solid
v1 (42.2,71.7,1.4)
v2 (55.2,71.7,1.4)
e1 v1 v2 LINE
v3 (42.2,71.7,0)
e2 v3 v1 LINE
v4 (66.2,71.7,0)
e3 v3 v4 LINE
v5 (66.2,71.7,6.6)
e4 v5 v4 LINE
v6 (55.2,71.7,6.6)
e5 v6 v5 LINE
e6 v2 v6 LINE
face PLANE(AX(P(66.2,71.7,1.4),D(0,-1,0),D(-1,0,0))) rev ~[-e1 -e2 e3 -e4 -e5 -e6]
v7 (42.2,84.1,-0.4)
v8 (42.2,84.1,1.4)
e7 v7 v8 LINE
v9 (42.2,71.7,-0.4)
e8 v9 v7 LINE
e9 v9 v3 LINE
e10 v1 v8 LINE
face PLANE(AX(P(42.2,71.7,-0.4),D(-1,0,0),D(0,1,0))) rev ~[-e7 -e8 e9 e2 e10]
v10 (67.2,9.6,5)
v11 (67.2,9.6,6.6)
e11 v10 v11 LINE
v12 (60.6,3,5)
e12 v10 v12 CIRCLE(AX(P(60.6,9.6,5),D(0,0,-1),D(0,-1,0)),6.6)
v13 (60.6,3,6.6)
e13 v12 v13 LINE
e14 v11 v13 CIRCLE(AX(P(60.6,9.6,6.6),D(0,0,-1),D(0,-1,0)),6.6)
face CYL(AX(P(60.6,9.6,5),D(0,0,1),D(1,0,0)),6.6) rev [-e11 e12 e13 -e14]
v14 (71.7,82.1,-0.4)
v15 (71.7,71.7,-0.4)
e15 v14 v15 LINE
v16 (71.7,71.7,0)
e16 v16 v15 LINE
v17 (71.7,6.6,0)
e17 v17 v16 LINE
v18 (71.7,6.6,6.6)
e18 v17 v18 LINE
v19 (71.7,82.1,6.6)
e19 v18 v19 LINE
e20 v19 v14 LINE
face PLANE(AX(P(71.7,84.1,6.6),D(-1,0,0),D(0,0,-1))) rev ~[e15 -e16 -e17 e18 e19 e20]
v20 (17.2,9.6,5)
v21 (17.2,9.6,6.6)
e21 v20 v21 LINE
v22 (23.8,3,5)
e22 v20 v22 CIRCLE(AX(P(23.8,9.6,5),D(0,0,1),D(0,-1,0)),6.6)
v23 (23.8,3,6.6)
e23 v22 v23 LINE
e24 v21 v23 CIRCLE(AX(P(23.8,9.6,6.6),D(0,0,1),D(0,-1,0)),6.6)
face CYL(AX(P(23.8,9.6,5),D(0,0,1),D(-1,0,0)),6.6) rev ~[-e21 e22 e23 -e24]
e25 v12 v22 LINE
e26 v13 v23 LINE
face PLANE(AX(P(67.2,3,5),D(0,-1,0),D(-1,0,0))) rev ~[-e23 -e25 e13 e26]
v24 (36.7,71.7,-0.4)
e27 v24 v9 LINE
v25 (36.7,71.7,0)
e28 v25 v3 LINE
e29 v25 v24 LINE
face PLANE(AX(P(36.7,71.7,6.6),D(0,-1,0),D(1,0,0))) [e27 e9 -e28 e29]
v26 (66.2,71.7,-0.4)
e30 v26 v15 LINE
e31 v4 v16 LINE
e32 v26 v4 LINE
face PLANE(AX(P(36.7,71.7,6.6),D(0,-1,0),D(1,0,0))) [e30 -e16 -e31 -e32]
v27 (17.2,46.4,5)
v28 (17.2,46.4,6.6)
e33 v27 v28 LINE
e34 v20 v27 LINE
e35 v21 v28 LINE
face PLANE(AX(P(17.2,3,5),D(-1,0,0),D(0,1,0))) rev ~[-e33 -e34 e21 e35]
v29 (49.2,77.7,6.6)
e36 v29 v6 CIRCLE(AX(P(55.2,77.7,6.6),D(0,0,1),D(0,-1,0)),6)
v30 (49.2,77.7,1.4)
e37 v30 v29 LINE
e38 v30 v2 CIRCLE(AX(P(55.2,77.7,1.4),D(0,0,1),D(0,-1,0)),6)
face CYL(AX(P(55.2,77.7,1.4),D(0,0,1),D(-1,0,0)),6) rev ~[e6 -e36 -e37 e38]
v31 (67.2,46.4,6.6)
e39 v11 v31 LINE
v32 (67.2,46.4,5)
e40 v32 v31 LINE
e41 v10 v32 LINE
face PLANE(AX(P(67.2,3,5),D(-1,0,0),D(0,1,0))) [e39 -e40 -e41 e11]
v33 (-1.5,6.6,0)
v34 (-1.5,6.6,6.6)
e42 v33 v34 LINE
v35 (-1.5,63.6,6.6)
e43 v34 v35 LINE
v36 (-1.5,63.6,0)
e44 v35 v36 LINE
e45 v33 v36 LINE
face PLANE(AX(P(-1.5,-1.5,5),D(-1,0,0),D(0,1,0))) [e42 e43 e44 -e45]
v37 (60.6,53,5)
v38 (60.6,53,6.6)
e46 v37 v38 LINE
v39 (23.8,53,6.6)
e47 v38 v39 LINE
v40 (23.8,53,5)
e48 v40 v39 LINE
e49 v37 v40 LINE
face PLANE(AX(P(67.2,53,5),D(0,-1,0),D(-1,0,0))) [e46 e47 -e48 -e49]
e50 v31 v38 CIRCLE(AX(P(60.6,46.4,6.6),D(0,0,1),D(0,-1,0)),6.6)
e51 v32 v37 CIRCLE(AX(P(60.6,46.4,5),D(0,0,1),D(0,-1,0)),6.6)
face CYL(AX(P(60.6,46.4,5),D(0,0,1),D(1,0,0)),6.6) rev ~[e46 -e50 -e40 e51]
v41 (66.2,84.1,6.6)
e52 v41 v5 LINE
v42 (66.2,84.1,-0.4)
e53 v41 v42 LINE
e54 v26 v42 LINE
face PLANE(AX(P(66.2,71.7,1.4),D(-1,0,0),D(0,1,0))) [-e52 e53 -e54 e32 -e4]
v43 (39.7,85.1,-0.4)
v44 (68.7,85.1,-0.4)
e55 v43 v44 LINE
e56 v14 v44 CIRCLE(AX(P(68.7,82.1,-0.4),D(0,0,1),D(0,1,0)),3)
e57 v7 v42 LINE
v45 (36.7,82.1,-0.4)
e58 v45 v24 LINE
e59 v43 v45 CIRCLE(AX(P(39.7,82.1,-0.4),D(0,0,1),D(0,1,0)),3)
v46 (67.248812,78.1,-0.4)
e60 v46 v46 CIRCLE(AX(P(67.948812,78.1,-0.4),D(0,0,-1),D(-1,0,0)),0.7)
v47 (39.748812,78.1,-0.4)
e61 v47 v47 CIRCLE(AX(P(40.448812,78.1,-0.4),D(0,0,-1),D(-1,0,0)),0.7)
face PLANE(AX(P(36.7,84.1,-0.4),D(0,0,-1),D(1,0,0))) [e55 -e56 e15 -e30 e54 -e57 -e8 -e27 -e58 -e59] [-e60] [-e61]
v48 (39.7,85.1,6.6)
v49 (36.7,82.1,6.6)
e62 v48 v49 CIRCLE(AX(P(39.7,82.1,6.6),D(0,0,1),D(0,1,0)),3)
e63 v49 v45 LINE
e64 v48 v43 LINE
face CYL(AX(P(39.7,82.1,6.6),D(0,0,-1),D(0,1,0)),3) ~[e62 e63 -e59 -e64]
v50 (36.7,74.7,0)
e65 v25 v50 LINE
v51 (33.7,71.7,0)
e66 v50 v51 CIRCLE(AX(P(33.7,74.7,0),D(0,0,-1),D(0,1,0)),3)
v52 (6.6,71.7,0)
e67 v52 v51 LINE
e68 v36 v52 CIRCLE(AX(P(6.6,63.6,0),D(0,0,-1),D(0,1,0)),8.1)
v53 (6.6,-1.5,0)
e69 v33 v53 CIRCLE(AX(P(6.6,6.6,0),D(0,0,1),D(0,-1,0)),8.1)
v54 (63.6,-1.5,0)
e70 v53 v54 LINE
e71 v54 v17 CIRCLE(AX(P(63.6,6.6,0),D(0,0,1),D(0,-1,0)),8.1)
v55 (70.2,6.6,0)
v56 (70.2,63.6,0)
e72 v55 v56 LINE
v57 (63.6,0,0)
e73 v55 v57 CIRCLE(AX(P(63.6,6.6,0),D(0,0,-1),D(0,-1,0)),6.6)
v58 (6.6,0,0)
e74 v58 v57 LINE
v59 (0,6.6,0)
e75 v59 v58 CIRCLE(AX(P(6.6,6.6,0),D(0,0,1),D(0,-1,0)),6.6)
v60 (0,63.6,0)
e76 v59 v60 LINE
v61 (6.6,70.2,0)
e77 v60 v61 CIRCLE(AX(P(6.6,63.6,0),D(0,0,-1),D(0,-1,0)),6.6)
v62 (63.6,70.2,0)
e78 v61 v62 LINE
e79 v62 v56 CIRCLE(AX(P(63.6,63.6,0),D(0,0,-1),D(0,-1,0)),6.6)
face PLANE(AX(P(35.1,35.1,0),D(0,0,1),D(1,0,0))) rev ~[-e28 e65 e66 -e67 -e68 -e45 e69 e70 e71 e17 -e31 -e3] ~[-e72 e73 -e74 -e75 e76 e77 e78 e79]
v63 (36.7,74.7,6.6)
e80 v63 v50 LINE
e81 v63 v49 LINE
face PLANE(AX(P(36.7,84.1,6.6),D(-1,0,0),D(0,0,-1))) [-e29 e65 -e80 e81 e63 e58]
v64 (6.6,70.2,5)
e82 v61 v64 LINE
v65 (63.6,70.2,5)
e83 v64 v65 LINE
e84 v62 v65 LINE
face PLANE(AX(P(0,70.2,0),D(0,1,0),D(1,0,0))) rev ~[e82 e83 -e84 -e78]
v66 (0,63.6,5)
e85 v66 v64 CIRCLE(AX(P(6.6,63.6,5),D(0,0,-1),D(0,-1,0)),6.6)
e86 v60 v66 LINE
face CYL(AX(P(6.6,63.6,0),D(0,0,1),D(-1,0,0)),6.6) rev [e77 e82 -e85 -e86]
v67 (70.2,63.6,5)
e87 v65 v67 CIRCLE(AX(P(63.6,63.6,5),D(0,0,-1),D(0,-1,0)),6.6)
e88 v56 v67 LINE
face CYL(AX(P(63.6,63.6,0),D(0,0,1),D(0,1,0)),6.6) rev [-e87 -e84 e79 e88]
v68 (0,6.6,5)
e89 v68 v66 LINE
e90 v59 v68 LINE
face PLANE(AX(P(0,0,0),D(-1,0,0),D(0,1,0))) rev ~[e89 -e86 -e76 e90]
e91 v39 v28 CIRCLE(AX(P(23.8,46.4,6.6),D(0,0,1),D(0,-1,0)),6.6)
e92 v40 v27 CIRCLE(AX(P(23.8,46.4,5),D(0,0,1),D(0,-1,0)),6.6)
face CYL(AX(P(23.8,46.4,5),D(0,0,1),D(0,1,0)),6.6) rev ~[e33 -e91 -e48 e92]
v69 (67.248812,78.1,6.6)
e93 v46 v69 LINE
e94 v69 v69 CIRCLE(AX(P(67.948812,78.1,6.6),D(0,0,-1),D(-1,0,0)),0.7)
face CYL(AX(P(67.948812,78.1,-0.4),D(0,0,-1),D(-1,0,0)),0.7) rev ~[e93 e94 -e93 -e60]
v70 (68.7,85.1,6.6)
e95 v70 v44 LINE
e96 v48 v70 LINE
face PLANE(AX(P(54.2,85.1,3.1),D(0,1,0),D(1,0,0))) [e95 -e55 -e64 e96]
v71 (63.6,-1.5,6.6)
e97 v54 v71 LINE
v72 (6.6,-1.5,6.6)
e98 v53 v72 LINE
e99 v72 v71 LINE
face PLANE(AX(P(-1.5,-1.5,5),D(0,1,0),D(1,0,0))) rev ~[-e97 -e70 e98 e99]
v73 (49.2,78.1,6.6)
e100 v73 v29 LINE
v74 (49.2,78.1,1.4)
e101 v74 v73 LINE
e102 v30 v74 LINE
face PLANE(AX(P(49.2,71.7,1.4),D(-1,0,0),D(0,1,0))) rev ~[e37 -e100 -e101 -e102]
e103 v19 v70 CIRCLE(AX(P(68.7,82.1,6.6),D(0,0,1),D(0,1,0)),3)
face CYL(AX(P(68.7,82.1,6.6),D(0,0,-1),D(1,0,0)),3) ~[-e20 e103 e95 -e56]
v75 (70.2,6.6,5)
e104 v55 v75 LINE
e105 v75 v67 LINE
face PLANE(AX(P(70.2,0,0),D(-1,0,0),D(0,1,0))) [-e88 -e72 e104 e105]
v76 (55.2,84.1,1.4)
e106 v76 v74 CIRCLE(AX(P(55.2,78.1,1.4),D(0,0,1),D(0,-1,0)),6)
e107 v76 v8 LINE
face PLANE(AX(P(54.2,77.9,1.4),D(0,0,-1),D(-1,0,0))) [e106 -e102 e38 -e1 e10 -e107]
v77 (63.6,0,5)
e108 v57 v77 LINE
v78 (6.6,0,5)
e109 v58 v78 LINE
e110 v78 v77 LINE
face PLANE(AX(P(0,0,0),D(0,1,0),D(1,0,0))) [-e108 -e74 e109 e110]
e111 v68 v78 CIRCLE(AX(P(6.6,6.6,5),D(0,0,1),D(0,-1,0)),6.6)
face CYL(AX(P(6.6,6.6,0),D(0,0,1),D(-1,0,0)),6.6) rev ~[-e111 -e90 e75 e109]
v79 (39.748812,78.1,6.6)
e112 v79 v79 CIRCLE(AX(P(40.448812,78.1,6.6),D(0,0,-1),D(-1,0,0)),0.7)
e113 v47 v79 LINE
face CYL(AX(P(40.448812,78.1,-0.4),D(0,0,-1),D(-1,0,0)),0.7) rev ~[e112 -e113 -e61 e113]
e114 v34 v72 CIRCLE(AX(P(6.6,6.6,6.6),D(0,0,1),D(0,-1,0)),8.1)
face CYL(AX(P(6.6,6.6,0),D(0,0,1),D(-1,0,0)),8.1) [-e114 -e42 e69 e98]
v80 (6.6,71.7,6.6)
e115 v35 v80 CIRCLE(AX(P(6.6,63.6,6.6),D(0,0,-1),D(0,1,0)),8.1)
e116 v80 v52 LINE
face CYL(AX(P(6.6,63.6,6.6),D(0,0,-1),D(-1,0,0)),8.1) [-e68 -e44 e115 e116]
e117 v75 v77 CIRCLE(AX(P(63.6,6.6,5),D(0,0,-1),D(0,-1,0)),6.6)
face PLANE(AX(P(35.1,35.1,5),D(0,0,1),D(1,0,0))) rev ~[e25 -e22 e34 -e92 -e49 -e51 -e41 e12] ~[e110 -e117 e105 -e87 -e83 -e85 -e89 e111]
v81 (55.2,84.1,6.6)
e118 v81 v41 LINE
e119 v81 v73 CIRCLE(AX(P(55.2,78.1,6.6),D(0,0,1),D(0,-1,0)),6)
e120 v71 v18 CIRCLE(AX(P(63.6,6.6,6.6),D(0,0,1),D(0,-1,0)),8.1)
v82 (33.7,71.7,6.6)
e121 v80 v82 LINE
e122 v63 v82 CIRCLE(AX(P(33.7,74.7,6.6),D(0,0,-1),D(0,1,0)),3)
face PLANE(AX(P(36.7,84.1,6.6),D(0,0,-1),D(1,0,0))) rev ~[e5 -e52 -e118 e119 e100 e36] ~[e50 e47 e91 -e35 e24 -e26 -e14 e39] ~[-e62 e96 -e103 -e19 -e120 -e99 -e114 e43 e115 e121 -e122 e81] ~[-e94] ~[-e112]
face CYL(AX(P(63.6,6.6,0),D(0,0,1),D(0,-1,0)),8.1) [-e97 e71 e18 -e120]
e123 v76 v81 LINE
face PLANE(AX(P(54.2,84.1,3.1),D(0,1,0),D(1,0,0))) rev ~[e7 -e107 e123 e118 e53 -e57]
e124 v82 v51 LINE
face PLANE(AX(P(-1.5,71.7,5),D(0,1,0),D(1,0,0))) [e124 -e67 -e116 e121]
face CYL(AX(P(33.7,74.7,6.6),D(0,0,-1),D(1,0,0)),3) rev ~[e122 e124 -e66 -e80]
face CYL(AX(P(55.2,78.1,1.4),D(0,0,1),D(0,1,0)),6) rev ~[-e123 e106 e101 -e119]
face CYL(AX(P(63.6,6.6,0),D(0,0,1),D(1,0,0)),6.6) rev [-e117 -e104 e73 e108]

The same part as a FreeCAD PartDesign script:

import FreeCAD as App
import Part
import Sketcher

V = App.Vector


def edges_at(feature, points):
    """Names of the edges that pass closest to the given points."""
    edges = feature.Shape.Edges
    near = lambda p: min(range(len(edges)), key=lambda i: edges[i].distToShape(Part.Vertex(*p))[0])
    return sorted({f"Edge{near(p) + 1}" for p in points})


def add_polygon(sketch, points):
    """Adds a closed chain of lines whose ends are joined by coincident constraints."""
    first, n = sketch.GeometryCount, len(points)
    for a, b in zip(points, points[1:] + points[:1]):
        sketch.addGeometry(Part.LineSegment(App.Vector(*a, 0), App.Vector(*b, 0)), False)
    for i in range(n):
        sketch.addConstraint(Sketcher.Constraint("Coincident", first + i, 2, first + (i + 1) % n, 1))

doc = App.newDocument("Part")
body = doc.addObject("PartDesign::Body", "Body")

# Sketch on XY plane
sketch1 = body.newObject("Sketcher::SketchObject", "Sketch")
sketch1.AttachmentSupport = (doc.getObject("XY_Plane"), [""])
sketch1.MapMode = "FlatFace"
add_polygon(sketch1, [(-2, 72), (-2, -2), (72, -2), (72, 72)])  # lines 0-3
add_polygon(sketch1, [(70, 0), (0, 0), (0, 70), (70, 70)])  # lines 4-7
sketch1.addConstraint([
    Sketcher.Constraint("Vertical", 0),
    Sketcher.Constraint("Horizontal", 1),
    Sketcher.Constraint("Vertical", 2),
    Sketcher.Constraint("Horizontal", 3),
    Sketcher.Constraint("Horizontal", 4),
    Sketcher.Constraint("Vertical", 5),
    Sketcher.Constraint("Horizontal", 6),
    Sketcher.Constraint("Vertical", 7),
    Sketcher.Constraint("Coincident", 4, 2, -1, 1),
    Sketcher.Constraint("Equal", 3, 0),
    Sketcher.Constraint("Equal", 6, 5),
    Sketcher.Constraint("DistanceX", 1, 1, 1, 2, 73.2),
    Sketcher.Constraint("DistanceX", 4, 2, 4, 1, 70.2),
    Sketcher.Constraint("DistanceX", 0, 2, -1, 1, 1.5),
    Sketcher.Constraint("DistanceY", 0, 2, -1, 1, 1.5),
])
pad1 = body.newObject("PartDesign::Pad", "Pad")
pad1.Profile = sketch1
pad1.Length = 5

# Sketch on XY plane
sketch2 = body.newObject("Sketcher::SketchObject", "Sketch001")
sketch2.AttachmentSupport = (doc.getObject("XY_Plane"), [""])
sketch2.MapMode = "FlatFace"
sketch2.AttachmentOffset = App.Placement(V(0, 0, 5), App.Rotation())
add_polygon(sketch2, [(-2, 72), (-2, -2), (72, -2), (72, 72)])  # lines 0-3
sketch2.addConstraint([
    Sketcher.Constraint("Vertical", 0),
    Sketcher.Constraint("Horizontal", 1),
    Sketcher.Constraint("Vertical", 2),
    Sketcher.Constraint("Horizontal", 3),
    Sketcher.Constraint("Equal", 3, 0),
    Sketcher.Constraint("DistanceX", 1, 1, 1, 2, 73.2),
    Sketcher.Constraint("DistanceX", 0, 2, -1, 1, 1.5),
    Sketcher.Constraint("DistanceY", 0, 2, -1, 1, 1.5),
])
pad2 = body.newObject("PartDesign::Pad", "Pad001")
pad2.Profile = sketch2
pad2.Length = 1.6
doc.recompute()

fillet = body.newObject("PartDesign::Fillet", "Fillet")
fillet.Base = (pad2, edges_at(pad2, [
    (0, 70.2, 2.5),
    (0, 0, 2.5),
    (70.2, 0, 2.5),
    (70.2, 70.2, 2.5),
]))
fillet.Radius = 6.6

# Sketch on XY plane
sketch3 = body.newObject("Sketcher::SketchObject", "Sketch002")
sketch3.AttachmentSupport = (doc.getObject("XY_Plane"), [""])
sketch3.MapMode = "FlatFace"
sketch3.AttachmentOffset = App.Placement(V(0, 0, 5), App.Rotation())
add_polygon(sketch3, [(67, 53), (67, 3), (17, 3), (17, 53)])  # lines 0-3
sketch3.addConstraint([
    Sketcher.Constraint("Vertical", 0),
    Sketcher.Constraint("Horizontal", 1),
    Sketcher.Constraint("Vertical", 2),
    Sketcher.Constraint("Horizontal", 3),
    Sketcher.Constraint("Equal", 3, 0),
    Sketcher.Constraint("DistanceX", 1, 2, 1, 1, 50.0),
    Sketcher.Constraint("DistanceY", -1, 1, 0, 2, 3.0),
    Sketcher.Constraint("DistanceX", -1, 1, 0, 2, 67.2),
])
pocket1 = body.newObject("PartDesign::Pocket", "Pocket")
pocket1.Profile = sketch3
pocket1.Length = 1.6
pocket1.Reversed = True
doc.recompute()

fillet2 = body.newObject("PartDesign::Fillet", "Fillet001")
fillet2.Base = (pocket1, edges_at(pocket1, [
    (67.2, 3, 5.8),
    (67.2, 53, 5.8),
    (17.2, 53, 5.8),
    (17.2, 3, 5.8),
]))
fillet2.Radius = 6.6

# Sketch on XY plane
sketch4 = body.newObject("Sketcher::SketchObject", "Sketch003")
sketch4.AttachmentSupport = (doc.getObject("XY_Plane"), [""])
sketch4.MapMode = "FlatFace"
sketch4.AttachmentOffset = App.Placement(V(0, 0, 6.6), App.Rotation())
add_polygon(sketch4, [(37, 84), (37, 72), (72, 72), (72, 84)])  # lines 0-3
sketch4.addConstraint([
    Sketcher.Constraint("Vertical", 0),
    Sketcher.Constraint("Horizontal", 1),
    Sketcher.Constraint("Vertical", 2),
    Sketcher.Constraint("Horizontal", 3),
    Sketcher.Constraint("DistanceX", 1, 1, 1, 2, 35.0),
    Sketcher.Constraint("DistanceY", 0, 2, 0, 1, 12.4),
    Sketcher.Constraint("DistanceX", -1, 1, 0, 2, 36.7),
    Sketcher.Constraint("DistanceY", -1, 1, 0, 2, 71.7),
])
pad3 = body.newObject("PartDesign::Pad", "Pad002")
pad3.Profile = sketch4
pad3.Length = 7
pad3.Reversed = True

# Sketch on XY plane
sketch5 = body.newObject("Sketcher::SketchObject", "Sketch004")
sketch5.AttachmentSupport = (doc.getObject("XY_Plane"), [""])
sketch5.MapMode = "FlatFace"
sketch5.AttachmentOffset = App.Placement(V(0, 0, -0.4), App.Rotation())
add_polygon(sketch5, [(66, 84), (66, 72), (42, 72), (42, 84)])  # lines 0-3
sketch5.addConstraint([
    Sketcher.Constraint("Vertical", 0),
    Sketcher.Constraint("Horizontal", 1),
    Sketcher.Constraint("Vertical", 2),
    Sketcher.Constraint("Horizontal", 3),
    Sketcher.Constraint("DistanceX", 1, 2, 1, 1, 24.0),
    Sketcher.Constraint("DistanceY", 0, 2, 0, 1, 12.4),
    Sketcher.Constraint("DistanceX", -1, 1, 0, 2, 66.2),
    Sketcher.Constraint("DistanceY", -1, 1, 0, 2, 71.7),
])
pocket2 = body.newObject("PartDesign::Pocket", "Pocket001")
pocket2.Profile = sketch5
pocket2.Length = 1.8
pocket2.Reversed = True

# Sketch on XY plane
sketch6 = body.newObject("Sketcher::SketchObject", "Sketch005")
sketch6.AttachmentSupport = (doc.getObject("XY_Plane"), [""])
sketch6.MapMode = "FlatFace"
sketch6.AttachmentOffset = App.Placement(V(0, 0, 1.4), App.Rotation())
add_polygon(sketch6, [(66, 84), (66, 72), (49, 72), (49, 84)])  # lines 0-3
sketch6.addConstraint([
    Sketcher.Constraint("Vertical", 0),
    Sketcher.Constraint("Horizontal", 1),
    Sketcher.Constraint("Vertical", 2),
    Sketcher.Constraint("Horizontal", 3),
    Sketcher.Constraint("DistanceX", 1, 2, 1, 1, 17.0),
    Sketcher.Constraint("DistanceY", 0, 2, 0, 1, 12.4),
    Sketcher.Constraint("DistanceX", -1, 1, 0, 2, 66.2),
    Sketcher.Constraint("DistanceY", -1, 1, 0, 2, 71.7),
])
pocket3 = body.newObject("PartDesign::Pocket", "Pocket002")
pocket3.Profile = sketch6
pocket3.Length = 10.8
pocket3.Reversed = True

# Sketch on XZ plane
sketch7 = body.newObject("Sketcher::SketchObject", "Sketch006")
sketch7.AttachmentSupport = (doc.getObject("XZ_Plane"), [""])
sketch7.MapMode = "FlatFace"
sketch7.AttachmentOffset = App.Placement(V(0, 0, -84.1), App.Rotation())
add_polygon(sketch7, [(37, 0), (37, 7), (72, 7), (72, 0)])  # lines 0-3
sketch7.addConstraint([
    Sketcher.Constraint("Vertical", 0),
    Sketcher.Constraint("Horizontal", 1),
    Sketcher.Constraint("Vertical", 2),
    Sketcher.Constraint("Horizontal", 3),
    Sketcher.Constraint("DistanceX", 1, 1, 1, 2, 35.0),
    Sketcher.Constraint("DistanceY", 0, 1, 0, 2, 7.0),
    Sketcher.Constraint("DistanceX", -1, 1, 0, 2, 36.7),
    Sketcher.Constraint("DistanceY", -1, 1, 0, 2, 6.6),
])
pad4 = body.newObject("PartDesign::Pad", "Pad003")
pad4.Profile = sketch7
pad4.Length = 1
pad4.Reversed = True
doc.recompute()

fillet3 = body.newObject("PartDesign::Fillet", "Fillet002")
fillet3.Base = (pad4, edges_at(pad4, [(71.7, -1.5, 3.3), (-1.5, -1.5, 3.3), (-1.5, 71.7, 3.3)]))
fillet3.Radius = 8.1
doc.recompute()

fillet4 = body.newObject("PartDesign::Fillet", "Fillet003")
fillet4.Base = (fillet3, edges_at(fillet3, [(71.7, 85.1, 3.1), (36.7, 85.1, 3.1), (36.7, 71.7, 3.3)]))
fillet4.Radius = 3
doc.recompute()

fillet5 = body.newObject("PartDesign::Fillet", "Fillet004")
fillet5.Base = (fillet4, edges_at(fillet4, [(49.2, 84.1, 4), (49.2, 71.7, 4)]))
fillet5.Radius = 6

# Sketch on XY plane
sketch8 = body.newObject("Sketcher::SketchObject", "Sketch007")
sketch8.AttachmentSupport = (doc.getObject("XY_Plane"), [""])
sketch8.MapMode = "FlatFace"
sketch8.AttachmentOffset = App.Placement(V(0, 0, -0.4), App.Rotation())
sketch8.addGeometry([
    Part.Circle(V(40.4, 78.1, 0), V(0, 0, 1), 0.7),
    Part.Circle(V(67.9, 78.1, 0), V(0, 0, 1), 0.7),
], False)
sketch8.addConstraint([
    Sketcher.Constraint("Equal", 0, 1),
    Sketcher.Constraint("Horizontal", 0, 3, 1, 3),
    Sketcher.Constraint("Diameter", 0, 1.4),
    Sketcher.Constraint("DistanceY", -1, 1, 0, 3, 78.1),
    Sketcher.Constraint("DistanceX", 0, 3, 1, 3, 27.5),
    Sketcher.Constraint("DistanceX", -1, 1, 0, 3, 40.448812),
])
pocket4 = body.newObject("PartDesign::Pocket", "Pocket003")
pocket4.Profile = sketch8
pocket4.Length = 10
pocket4.Reversed = True

doc.recompute()
